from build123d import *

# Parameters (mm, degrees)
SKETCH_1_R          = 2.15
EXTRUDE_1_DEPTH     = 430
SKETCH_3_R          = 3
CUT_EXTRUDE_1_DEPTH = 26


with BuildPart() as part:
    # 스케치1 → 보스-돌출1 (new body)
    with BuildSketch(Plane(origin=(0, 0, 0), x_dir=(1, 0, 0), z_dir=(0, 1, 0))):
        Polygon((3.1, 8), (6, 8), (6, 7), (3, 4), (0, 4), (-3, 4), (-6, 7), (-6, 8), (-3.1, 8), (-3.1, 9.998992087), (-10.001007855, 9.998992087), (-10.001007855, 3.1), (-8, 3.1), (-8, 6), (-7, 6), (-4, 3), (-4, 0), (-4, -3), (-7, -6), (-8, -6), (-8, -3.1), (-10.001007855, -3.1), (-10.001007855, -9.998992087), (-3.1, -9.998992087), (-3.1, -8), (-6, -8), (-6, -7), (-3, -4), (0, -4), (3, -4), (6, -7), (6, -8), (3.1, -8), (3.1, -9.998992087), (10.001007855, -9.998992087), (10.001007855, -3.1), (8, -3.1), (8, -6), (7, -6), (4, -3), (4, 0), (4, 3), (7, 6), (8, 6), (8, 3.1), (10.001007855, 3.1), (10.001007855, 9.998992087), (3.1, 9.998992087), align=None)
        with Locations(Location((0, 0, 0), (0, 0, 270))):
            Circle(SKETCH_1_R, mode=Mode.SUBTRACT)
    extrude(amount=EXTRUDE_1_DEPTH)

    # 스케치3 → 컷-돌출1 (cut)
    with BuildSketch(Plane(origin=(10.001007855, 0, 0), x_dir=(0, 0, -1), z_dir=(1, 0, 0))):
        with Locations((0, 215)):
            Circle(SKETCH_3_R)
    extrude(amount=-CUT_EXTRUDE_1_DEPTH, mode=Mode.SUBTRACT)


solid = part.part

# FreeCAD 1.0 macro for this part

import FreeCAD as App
import Part
import Sketcher


def add_polygon(sketch, points):
    """Adds a closed chain of lines whose ends are joined by coincident constraints."""
    first, n = sketch.GeometryCount, len(points)
    for a, b in zip(points, points[1:] + points[:1]):
        sketch.addGeometry(Part.LineSegment(App.Vector(*a, 0), App.Vector(*b, 0)), False)
    for i in range(n):
        sketch.addConstraint(Sketcher.Constraint("Coincident", first + i, 2, first + (i + 1) % n, 1))

doc = App.newDocument("Part")
body = doc.addObject("PartDesign::Body", "Body")

# Sketch on XZ plane
sketch1 = body.newObject("Sketcher::SketchObject", "Sketch")
sketch1.AttachmentSupport = (doc.getObject("XZ_Plane"), [""])
sketch1.MapMode = "FlatFace"
add_polygon(sketch1, [(3.1, -8), (6, -8), (6, -7), (3, -4), (-3, -4), (-6, -7), (-6, -8), (-3.1, -8), (-3.1, -10), (-10, -10), (-10, -3.1), (-8, -3.1), (-8, -6), (-7, -6), (-4, -3), (-4, 3), (-7, 6), (-8, 6), (-8, 3.1), (-10, 3.1), (-10, 10), (-3.1, 10), (-3.1, 8), (-6, 8), (-6, 7), (-3, 4), (3, 4), (6, 7), (6, 8), (3.1, 8), (3.1, 10), (10, 10), (10, 3.1), (8, 3.1), (8, 6), (7, 6), (4, 3), (4, -3), (7, -6), (8, -6), (8, -3.1), (10, -3.1), (10, -10), (3.1, -10)])  # lines 0-43
sketch1.addGeometry(Part.Circle(App.Vector(0, 0, 0), App.Vector(0, 0, 1), 2.1), False)  # 44
sketch1.addConstraint([
    Sketcher.Constraint("Horizontal", 0),
    Sketcher.Constraint("Vertical", 1),
    Sketcher.Constraint("Horizontal", 3),
    Sketcher.Constraint("Vertical", 5),
    Sketcher.Constraint("Horizontal", 6),
    Sketcher.Constraint("Vertical", 7),
    Sketcher.Constraint("Horizontal", 8),
    Sketcher.Constraint("Vertical", 9),
    Sketcher.Constraint("Horizontal", 10),
    Sketcher.Constraint("Vertical", 11),
    Sketcher.Constraint("Horizontal", 12),
    Sketcher.Constraint("Vertical", 14),
    Sketcher.Constraint("Horizontal", 16),
    Sketcher.Constraint("Vertical", 17),
    Sketcher.Constraint("Horizontal", 18),
    Sketcher.Constraint("Vertical", 19),
    Sketcher.Constraint("Horizontal", 20),
    Sketcher.Constraint("Vertical", 21),
    Sketcher.Constraint("Horizontal", 22),
    Sketcher.Constraint("Vertical", 23),
    Sketcher.Constraint("Horizontal", 25),
    Sketcher.Constraint("Vertical", 27),
    Sketcher.Constraint("Horizontal", 28),
    Sketcher.Constraint("Vertical", 29),
    Sketcher.Constraint("Horizontal", 30),
    Sketcher.Constraint("Vertical", 31),
    Sketcher.Constraint("Horizontal", 32),
    Sketcher.Constraint("Vertical", 33),
    Sketcher.Constraint("Horizontal", 34),
    Sketcher.Constraint("Vertical", 36),
    Sketcher.Constraint("Horizontal", 38),
    Sketcher.Constraint("Vertical", 39),
    Sketcher.Constraint("Horizontal", 40),
    Sketcher.Constraint("Vertical", 41),
    Sketcher.Constraint("Horizontal", 42),
    Sketcher.Constraint("Vertical", 43),
    Sketcher.Constraint("Coincident", 44, 3, -1, 1),
    Sketcher.Constraint("Symmetric", 0, 2, 22, 2, -1, 1),
    Sketcher.Constraint("Symmetric", 2, 2, 24, 2, -1, 1),
    Sketcher.Constraint("Symmetric", 4, 2, 26, 2, -1, 1),
    Sketcher.Constraint("Symmetric", 6, 2, 28, 2, -1, 1),
    Sketcher.Constraint("Symmetric", 8, 2, 30, 2, -1, 1),
    Sketcher.Constraint("Symmetric", 10, 2, 32, 2, -1, 1),
    Sketcher.Constraint("Symmetric", 12, 2, 34, 2, -1, 1),
    Sketcher.Constraint("Symmetric", 13, 2, 35, 2, -1, 1),
    Sketcher.Constraint("Symmetric", 15, 2, 37, 2, -1, 1),
    Sketcher.Constraint("Symmetric", 17, 2, 39, 2, -1, 1),
    Sketcher.Constraint("Symmetric", 19, 2, 41, 2, -1, 1),
    Sketcher.Constraint("Symmetric", 1, 2, 4, 2, -2),
    Sketcher.Constraint("Symmetric", 21, 2, 28, 2, -2),
    Sketcher.Constraint("Symmetric", 19, 2, 30, 2, -2),
    Sketcher.Constraint("Symmetric", 17, 2, 32, 2, -2),
    Sketcher.Constraint("Symmetric", 15, 2, 34, 2, -2),
    Sketcher.Constraint("Perpendicular", 2, 4),
    Sketcher.Constraint("Parallel", 4, 13),
    Sketcher.Constraint("Perpendicular", 13, 15),
    Sketcher.Constraint("Parallel", 15, 24),
    Sketcher.Constraint("Perpendicular", 24, 26),
    Sketcher.Constraint("Perpendicular", 35, 37),
    Sketcher.Constraint("Horizontal", 14, 2, 35, 2),
    Sketcher.Constraint("Vertical", 29, 2, 42, 2),
    Sketcher.Constraint("Equal", 38, 1),
    Sketcher.Constraint("Equal", 28, 11),
    Sketcher.Constraint("Equal", 25, 14),
    Sketcher.Constraint("Equal", 4, 13),
    Sketcher.Constraint("Diameter", 44, 4.3),
    Sketcher.Constraint("DistanceX", 3, 2, 3, 1, 6.0),
    Sketcher.Constraint("DistanceX", 12, 1, 12, 2, 1.0),
    Sketcher.Constraint("DistanceX", 0, 1, 0, 2, 2.9),
    Sketcher.Constraint("DistanceX", -1, 1, 0, 2, 6.0),
    Sketcher.Constraint("DistanceY", 0, 2, -1, 1, 8.0),
    Sketcher.Constraint("DistanceX", 10, 2, -1, 1, 8.0),
    Sketcher.Constraint("DistanceX", 8, 2, 8, 1, 6.901008),
    Sketcher.Constraint("DistanceY", 7, 2, 7, 1, 1.998992),
])
pad1 = body.newObject("PartDesign::Pad", "Pad")
pad1.Profile = sketch1
pad1.Length = 430
pad1.Reversed = True

# Sketch on YZ plane
sketch2 = body.newObject("Sketcher::SketchObject", "Sketch001")
sketch2.AttachmentSupport = (doc.getObject("YZ_Plane"), [""])
sketch2.MapMode = "FlatFace"
sketch2.AttachmentOffset = App.Placement(App.Vector(0, 0, 10.001008), App.Rotation())
sketch2.addGeometry(Part.Circle(App.Vector(215, 0, 0), App.Vector(0, 0, 1), 3), False)
sketch2.addConstraint([
    Sketcher.Constraint("PointOnObject", 0, 3, -1),
    Sketcher.Constraint("Diameter", 0, 6.0),
    Sketcher.Constraint("DistanceX", -1, 1, 0, 3, 215.0),
])
pocket1 = body.newObject("PartDesign::Pocket", "Pocket")
pocket1.Profile = sketch2
pocket1.Length = 26

doc.recompute()
